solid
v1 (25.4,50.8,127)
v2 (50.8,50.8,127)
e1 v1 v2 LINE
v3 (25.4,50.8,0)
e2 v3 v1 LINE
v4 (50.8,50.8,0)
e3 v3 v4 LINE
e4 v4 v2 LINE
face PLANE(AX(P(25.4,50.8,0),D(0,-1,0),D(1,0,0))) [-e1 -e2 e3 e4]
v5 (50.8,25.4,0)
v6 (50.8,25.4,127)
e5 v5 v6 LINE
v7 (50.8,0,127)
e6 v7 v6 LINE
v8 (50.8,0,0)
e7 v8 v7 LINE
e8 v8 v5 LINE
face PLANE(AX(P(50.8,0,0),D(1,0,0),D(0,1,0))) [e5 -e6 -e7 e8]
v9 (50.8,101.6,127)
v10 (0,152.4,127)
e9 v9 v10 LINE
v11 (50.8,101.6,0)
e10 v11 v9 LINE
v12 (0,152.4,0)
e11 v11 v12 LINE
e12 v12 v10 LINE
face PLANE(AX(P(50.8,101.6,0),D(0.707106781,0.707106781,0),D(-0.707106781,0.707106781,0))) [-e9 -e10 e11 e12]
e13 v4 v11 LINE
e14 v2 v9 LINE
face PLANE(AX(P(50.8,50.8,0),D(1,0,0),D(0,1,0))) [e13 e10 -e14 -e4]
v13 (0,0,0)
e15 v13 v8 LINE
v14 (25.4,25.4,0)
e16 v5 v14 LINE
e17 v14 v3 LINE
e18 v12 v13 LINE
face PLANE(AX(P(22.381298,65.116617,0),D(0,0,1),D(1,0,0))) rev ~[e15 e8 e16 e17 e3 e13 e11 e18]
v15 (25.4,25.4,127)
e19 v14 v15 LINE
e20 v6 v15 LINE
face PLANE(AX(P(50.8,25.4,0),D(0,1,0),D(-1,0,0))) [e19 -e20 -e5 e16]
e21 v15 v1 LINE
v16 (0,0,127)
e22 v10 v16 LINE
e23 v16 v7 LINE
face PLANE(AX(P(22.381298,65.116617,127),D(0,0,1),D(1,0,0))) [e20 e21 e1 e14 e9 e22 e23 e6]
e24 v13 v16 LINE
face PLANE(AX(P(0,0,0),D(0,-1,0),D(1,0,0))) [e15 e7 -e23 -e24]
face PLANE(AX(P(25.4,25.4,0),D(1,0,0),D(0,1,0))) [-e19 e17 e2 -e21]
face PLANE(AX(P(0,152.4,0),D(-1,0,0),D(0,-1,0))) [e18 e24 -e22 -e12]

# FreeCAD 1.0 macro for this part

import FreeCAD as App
import Part
import Sketcher
Q = App.Units.Quantity

doc = App.newDocument("Part")
body = doc.addObject("PartDesign::Body", "Body")

sketch1 = body.newObject("Sketcher::SketchObject", "Sketch")
sketch1.AttachmentSupport = (doc.getObject("XY_Plane"), [""])
sketch1.MapMode = "FlatFace"
sketch1.addGeometry(Part.LineSegment(App.Vector(0, 152.4, 0), App.Vector(0, 0, 0)), False)
sketch1.addGeometry(Part.LineSegment(App.Vector(0, 0, 0), App.Vector(50.8, 0, 0)), False)
sketch1.addGeometry(Part.LineSegment(App.Vector(50.8, 0, 0), App.Vector(50.8, 25.4, 0)), False)
sketch1.addGeometry(Part.LineSegment(App.Vector(50.8, 25.4, 0), App.Vector(25.4, 25.4, 0)), False)
sketch1.addGeometry(Part.LineSegment(App.Vector(25.4, 25.4, 0), App.Vector(25.4, 50.8, 0)), False)
sketch1.addGeometry(Part.LineSegment(App.Vector(25.4, 50.8, 0), App.Vector(50.8, 50.8, 0)), False)
sketch1.addGeometry(Part.LineSegment(App.Vector(50.8, 50.8, 0), App.Vector(50.8, 101.6, 0)), False)
sketch1.addGeometry(Part.LineSegment(App.Vector(50.8, 101.6, 0), App.Vector(0, 152.4, 0)), False)
sketch1.addConstraint(Sketcher.Constraint("Coincident", 0, 2, 1, 1))
sketch1.addConstraint(Sketcher.Constraint("Coincident", 1, 2, 2, 1))
sketch1.addConstraint(Sketcher.Constraint("Coincident", 2, 2, 3, 1))
sketch1.addConstraint(Sketcher.Constraint("Coincident", 3, 2, 4, 1))
sketch1.addConstraint(Sketcher.Constraint("Coincident", 4, 2, 5, 1))
sketch1.addConstraint(Sketcher.Constraint("Coincident", 5, 2, 6, 1))
sketch1.addConstraint(Sketcher.Constraint("Coincident", 6, 2, 7, 1))
sketch1.addConstraint(Sketcher.Constraint("Coincident", 7, 2, 0, 1))
sketch1.addConstraint(Sketcher.Constraint("Vertical", 0))
sketch1.addConstraint(Sketcher.Constraint("Horizontal", 1))
sketch1.addConstraint(Sketcher.Constraint("Vertical", 2))
sketch1.addConstraint(Sketcher.Constraint("Horizontal", 3))
sketch1.addConstraint(Sketcher.Constraint("Vertical", 4))
sketch1.addConstraint(Sketcher.Constraint("Horizontal", 5))
sketch1.addConstraint(Sketcher.Constraint("Vertical", 6))
sketch1.addConstraint(Sketcher.Constraint("Coincident", 0, 2, -1, 1))
sketch1.addConstraint(Sketcher.Constraint("Vertical", 2, 2, 5, 2))
sketch1.addConstraint(Sketcher.Constraint("Equal", 5, 2))
sketch1.addConstraint(Sketcher.Constraint("Equal", 2, 4))
sketch1.addConstraint(Sketcher.Constraint("Equal", 1, 6))
sketch1.addConstraint(Sketcher.Constraint("DistanceX", 1, 1, 1, 2, Q("2 in")))
sketch1.addConstraint(Sketcher.Constraint("DistanceX", 3, 2, 3, 1, Q("1 in")))
sketch1.addConstraint(Sketcher.Constraint("DistanceY", 0, 2, 0, 1, Q("6 in")))

sketch2 = body.newObject("Sketcher::SketchObject", "Sketch001")
sketch2.AttachmentSupport = (doc.getObject("XZ_Plane"), [""])
sketch2.MapMode = "FlatFace"
sketch2.addGeometry(Part.LineSegment(App.Vector(0, 0, 0), App.Vector(0, 127, 0)), False)
sketch2.addConstraint(Sketcher.Constraint("Vertical", 0))
sketch2.addConstraint(Sketcher.Constraint("Coincident", 0, 1, -1, 1))
sketch2.addConstraint(Sketcher.Constraint("DistanceY", 0, 1, 0, 2, Q("5 in")))
doc.recompute()

additivepipe = body.newObject("PartDesign::AdditivePipe", "AdditivePipe")
additivepipe.Profile = sketch1
additivepipe.Spine = (sketch2, ["Edge1"])

doc.recompute()
